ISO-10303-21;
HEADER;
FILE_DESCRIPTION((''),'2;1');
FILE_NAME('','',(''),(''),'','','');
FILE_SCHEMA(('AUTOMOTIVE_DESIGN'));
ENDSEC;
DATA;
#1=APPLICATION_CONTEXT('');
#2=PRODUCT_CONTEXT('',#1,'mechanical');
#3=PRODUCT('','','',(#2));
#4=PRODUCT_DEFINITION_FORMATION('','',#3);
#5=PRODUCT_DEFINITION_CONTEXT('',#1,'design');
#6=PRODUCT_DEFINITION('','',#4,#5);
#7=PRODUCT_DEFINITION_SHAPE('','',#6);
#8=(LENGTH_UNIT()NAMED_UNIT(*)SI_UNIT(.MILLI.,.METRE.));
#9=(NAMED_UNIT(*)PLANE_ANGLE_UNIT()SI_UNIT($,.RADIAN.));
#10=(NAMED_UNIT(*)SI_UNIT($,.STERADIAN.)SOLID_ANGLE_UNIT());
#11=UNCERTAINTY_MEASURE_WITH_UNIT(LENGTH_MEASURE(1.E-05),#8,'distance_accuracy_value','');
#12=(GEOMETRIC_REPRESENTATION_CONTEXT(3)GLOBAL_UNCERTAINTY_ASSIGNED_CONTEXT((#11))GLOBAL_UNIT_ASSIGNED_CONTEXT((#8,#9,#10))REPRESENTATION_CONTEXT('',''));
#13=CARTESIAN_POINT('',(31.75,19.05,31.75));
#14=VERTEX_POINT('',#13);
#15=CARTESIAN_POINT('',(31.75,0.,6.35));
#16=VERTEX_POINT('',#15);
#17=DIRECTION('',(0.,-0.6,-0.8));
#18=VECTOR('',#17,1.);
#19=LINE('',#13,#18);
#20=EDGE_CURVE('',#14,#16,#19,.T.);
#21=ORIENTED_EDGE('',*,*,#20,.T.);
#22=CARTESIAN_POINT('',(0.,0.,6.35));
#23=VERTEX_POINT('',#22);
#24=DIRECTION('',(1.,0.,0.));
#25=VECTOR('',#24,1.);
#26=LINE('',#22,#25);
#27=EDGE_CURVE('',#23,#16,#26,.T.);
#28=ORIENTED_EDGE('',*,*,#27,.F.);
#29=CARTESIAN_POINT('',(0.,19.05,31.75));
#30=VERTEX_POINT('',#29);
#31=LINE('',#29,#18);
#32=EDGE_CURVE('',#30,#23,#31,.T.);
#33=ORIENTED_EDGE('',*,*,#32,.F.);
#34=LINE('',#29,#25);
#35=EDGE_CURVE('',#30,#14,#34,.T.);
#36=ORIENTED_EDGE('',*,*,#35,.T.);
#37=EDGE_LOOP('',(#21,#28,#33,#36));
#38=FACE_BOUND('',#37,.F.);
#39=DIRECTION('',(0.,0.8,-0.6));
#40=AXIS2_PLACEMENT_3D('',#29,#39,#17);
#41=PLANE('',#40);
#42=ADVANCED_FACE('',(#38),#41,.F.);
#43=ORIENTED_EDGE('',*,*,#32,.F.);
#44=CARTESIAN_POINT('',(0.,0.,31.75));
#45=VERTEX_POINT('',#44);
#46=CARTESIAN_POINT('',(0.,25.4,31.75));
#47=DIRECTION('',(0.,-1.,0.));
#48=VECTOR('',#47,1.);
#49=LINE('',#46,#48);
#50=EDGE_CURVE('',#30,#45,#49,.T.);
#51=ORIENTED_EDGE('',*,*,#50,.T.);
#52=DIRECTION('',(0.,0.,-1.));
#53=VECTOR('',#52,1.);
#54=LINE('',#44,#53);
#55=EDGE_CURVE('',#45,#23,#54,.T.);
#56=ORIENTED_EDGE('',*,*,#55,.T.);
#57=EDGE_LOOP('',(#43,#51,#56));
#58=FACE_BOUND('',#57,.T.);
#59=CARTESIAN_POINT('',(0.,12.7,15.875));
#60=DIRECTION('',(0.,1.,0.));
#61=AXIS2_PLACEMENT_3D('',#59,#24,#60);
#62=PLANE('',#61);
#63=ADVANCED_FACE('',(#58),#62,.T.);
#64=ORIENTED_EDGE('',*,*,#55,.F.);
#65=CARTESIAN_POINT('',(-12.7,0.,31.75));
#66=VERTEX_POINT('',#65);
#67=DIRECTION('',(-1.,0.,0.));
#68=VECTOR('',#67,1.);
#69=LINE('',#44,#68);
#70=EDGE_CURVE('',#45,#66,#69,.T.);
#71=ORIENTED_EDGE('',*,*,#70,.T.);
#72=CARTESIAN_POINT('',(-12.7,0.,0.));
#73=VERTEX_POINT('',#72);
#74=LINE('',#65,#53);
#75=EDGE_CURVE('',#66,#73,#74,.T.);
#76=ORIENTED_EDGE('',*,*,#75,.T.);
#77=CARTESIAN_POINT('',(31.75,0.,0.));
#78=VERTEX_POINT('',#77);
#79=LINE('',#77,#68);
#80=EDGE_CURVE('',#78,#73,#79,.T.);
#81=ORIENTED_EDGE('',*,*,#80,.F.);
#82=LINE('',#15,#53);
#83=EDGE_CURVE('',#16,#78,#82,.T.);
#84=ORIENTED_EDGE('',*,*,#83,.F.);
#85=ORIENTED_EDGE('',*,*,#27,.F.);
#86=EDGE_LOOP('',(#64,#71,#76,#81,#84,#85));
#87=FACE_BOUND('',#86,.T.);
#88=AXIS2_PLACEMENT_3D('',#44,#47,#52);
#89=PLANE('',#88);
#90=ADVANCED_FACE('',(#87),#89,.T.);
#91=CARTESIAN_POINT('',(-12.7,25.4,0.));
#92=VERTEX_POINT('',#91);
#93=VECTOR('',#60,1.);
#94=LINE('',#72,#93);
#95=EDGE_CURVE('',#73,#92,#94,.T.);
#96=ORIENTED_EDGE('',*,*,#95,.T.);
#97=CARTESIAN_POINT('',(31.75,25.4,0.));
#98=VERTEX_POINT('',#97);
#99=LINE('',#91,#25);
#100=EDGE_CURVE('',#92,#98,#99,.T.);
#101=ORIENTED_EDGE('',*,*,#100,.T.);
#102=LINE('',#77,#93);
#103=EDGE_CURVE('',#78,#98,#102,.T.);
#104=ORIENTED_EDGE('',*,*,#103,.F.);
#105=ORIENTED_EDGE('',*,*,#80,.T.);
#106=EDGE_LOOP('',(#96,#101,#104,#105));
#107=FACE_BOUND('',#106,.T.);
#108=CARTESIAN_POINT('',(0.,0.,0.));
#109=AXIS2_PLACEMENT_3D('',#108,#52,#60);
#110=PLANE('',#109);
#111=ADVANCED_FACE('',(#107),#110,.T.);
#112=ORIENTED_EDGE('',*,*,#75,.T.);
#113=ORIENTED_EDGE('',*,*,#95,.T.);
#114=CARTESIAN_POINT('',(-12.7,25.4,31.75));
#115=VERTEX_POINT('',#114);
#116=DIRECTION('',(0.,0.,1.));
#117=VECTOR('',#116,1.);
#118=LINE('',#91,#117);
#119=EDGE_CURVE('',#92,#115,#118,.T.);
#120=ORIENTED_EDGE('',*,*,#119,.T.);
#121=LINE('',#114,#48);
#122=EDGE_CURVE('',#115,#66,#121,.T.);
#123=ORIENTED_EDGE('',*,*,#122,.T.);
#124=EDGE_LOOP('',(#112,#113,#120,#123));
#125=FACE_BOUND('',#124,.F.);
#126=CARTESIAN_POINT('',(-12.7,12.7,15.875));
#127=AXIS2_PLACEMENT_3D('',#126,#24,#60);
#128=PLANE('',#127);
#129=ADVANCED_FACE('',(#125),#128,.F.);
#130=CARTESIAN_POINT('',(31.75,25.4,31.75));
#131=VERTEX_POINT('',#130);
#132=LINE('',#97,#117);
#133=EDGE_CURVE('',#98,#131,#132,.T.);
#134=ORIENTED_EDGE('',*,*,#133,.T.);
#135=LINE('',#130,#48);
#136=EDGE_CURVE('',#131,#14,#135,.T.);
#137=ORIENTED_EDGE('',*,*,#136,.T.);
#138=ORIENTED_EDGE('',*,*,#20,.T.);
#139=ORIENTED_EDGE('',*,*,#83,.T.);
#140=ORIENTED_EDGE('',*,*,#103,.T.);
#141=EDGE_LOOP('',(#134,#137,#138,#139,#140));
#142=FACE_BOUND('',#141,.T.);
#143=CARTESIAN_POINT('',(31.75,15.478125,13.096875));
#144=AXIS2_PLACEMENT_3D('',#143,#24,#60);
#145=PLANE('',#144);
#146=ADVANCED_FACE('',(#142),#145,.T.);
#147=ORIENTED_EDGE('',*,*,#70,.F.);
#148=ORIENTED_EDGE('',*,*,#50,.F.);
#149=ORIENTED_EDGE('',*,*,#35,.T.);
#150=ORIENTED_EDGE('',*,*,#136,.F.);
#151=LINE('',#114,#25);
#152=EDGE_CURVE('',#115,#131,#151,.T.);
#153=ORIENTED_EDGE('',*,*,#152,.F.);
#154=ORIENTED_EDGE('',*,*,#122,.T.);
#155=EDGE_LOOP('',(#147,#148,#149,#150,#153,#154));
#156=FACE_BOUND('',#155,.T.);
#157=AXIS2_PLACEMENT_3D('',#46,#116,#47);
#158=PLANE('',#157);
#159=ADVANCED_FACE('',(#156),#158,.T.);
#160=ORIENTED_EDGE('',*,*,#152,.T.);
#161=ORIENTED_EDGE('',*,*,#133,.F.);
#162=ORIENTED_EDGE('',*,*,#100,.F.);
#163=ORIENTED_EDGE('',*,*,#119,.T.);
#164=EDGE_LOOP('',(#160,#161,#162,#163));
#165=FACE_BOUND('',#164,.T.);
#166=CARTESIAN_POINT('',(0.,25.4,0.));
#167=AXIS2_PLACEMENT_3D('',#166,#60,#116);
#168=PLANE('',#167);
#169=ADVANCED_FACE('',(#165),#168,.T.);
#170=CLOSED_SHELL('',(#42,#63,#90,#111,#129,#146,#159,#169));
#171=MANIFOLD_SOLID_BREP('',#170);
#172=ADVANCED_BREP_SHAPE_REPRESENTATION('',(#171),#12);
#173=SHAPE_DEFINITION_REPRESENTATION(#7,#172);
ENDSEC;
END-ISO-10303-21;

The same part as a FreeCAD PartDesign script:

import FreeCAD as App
import Part
import Sketcher
from FreeCAD import Vector
Q = App.Units.Quantity

doc = App.newDocument("Part")
body = doc.addObject("PartDesign::Body", "Body")

# Sketch on YZ plane
sketch1 = body.newObject("Sketcher::SketchObject", "Sketch")
sketch1.AttachmentSupport = (doc.getObject("YZ_Plane"), [""])
sketch1.MapMode = "FlatFace"
sketch1.addGeometry([
    Part.LineSegment(Vector(0, 6, 0), Vector(0, 0, 0)),  # 0
    Part.LineSegment(Vector(0, 0, 0), Vector(25, 0, 0)),  # 1
    Part.LineSegment(Vector(25, 0, 0), Vector(25, 32, 0)),  # 2
    Part.LineSegment(Vector(25, 32, 0), Vector(19, 32, 0)),  # 3
    Part.LineSegment(Vector(19, 32, 0), Vector(0, 6, 0)),  # 4
], False)
sketch1.addConstraint([
    Sketcher.Constraint("Coincident", 0, 2, 1, 1),
    Sketcher.Constraint("Coincident", 1, 2, 2, 1),
    Sketcher.Constraint("Coincident", 2, 2, 3, 1),
    Sketcher.Constraint("Coincident", 3, 2, 4, 1),
    Sketcher.Constraint("Coincident", 4, 2, 0, 1),
    Sketcher.Constraint("Vertical", 0),
    Sketcher.Constraint("Horizontal", 1),
    Sketcher.Constraint("Vertical", 2),
    Sketcher.Constraint("Horizontal", 3),
    Sketcher.Constraint("Coincident", 0, 2, -1, 1),
    Sketcher.Constraint("Equal", 3, 0),
    Sketcher.Constraint("DistanceX", 1, 1, 1, 2, Q("1 in")),
    Sketcher.Constraint("DistanceY", 4, 2, 3, 2, Q("1 in")),
    Sketcher.Constraint("DistanceX", 3, 2, 3, 1, Q("0.25 in")),
])
pad1 = body.newObject("PartDesign::Pad", "Pad")
pad1.Profile = sketch1
pad1.Length = Q("1.25 in")

# Sketch on YZ plane
sketch2 = body.newObject("Sketcher::SketchObject", "Sketch001")
sketch2.AttachmentSupport = (doc.getObject("YZ_Plane"), [""])
sketch2.MapMode = "FlatFace"
sketch2.addGeometry([
    Part.LineSegment(Vector(0, 0, 0), Vector(25, 0, 0)),
    Part.LineSegment(Vector(25, 0, 0), Vector(25, 32, 0)),
    Part.LineSegment(Vector(25, 32, 0), Vector(0, 32, 0)),
    Part.LineSegment(Vector(0, 32, 0), Vector(0, 0, 0)),
], False)
sketch2.addConstraint([
    Sketcher.Constraint("Coincident", 0, 2, 1, 1),
    Sketcher.Constraint("Coincident", 1, 2, 2, 1),
    Sketcher.Constraint("Coincident", 2, 2, 3, 1),
    Sketcher.Constraint("Coincident", 3, 2, 0, 1),
    Sketcher.Constraint("Horizontal", 0),
    Sketcher.Constraint("Vertical", 1),
    Sketcher.Constraint("Horizontal", 2),
    Sketcher.Constraint("Vertical", 3),
    Sketcher.Constraint("Coincident", 3, 2, -1, 1),
    Sketcher.Constraint("DistanceX", 0, 1, 0, 2, Q("1 in")),
    Sketcher.Constraint("DistanceY", 1, 1, 1, 2, Q("1.25 in")),
])
pad2 = body.newObject("PartDesign::Pad", "Pad001")
pad2.Profile = sketch2
pad2.Length = Q("0.5 in")
pad2.Reversed = True

doc.recompute()
